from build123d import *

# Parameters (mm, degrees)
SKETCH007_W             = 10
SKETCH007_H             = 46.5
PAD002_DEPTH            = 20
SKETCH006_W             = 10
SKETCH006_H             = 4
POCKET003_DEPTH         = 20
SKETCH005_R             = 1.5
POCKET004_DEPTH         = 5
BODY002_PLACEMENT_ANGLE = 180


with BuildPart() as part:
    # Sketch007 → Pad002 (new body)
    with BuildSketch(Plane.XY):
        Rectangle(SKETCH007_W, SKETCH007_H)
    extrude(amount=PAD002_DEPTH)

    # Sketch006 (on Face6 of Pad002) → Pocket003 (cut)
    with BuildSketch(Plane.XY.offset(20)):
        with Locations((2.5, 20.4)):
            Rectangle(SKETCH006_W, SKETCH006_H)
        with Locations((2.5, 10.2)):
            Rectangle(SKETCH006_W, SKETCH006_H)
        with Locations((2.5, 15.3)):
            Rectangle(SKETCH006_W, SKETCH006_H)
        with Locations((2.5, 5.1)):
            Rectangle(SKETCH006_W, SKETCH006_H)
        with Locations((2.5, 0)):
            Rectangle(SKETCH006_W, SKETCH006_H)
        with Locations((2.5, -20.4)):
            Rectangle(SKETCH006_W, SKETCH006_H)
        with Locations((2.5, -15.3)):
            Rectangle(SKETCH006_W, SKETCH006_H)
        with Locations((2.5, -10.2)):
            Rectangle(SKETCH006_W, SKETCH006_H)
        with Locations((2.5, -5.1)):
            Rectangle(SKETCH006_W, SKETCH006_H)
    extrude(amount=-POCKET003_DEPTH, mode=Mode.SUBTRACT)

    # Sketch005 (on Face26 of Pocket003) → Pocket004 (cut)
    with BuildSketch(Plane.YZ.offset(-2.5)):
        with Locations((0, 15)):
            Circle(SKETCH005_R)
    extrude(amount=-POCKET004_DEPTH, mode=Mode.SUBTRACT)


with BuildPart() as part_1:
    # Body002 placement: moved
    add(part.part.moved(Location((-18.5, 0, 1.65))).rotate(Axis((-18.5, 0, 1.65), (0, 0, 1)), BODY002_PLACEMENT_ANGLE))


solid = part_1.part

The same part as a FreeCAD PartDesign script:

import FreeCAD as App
import Part
import Sketcher
Q = App.Units.Quantity

doc = App.newDocument("Part")
params = doc.addObject("Spreadsheet::Sheet", "Params")
for row, (alias, value) in enumerate([
    ("sketch1_width", "10 mm"),
    ("sketch1_height", "46.5 mm"),
    ("pad1_length", "20 mm"),
    ("sketch2_width", "10 mm"),
    ("sketch2_height", "4 mm"),
    ("pocket1_length", "20 mm"),
    ("sketch3_diameter", "3 mm"),
    ("pocket2_length", "5 mm"),
], start=1):
    params.set(f"A{row}", alias)
    params.set(f"B{row}", "=" + value)
    params.setAlias(f"B{row}", alias)

body = doc.addObject("PartDesign::Body", "Body")

sketch1 = body.newObject("Sketcher::SketchObject", "Sketch")
sketch1.AttachmentSupport = (doc.getObject("XY_Plane"), [""])
sketch1.MapMode = "FlatFace"
sketch1.addGeometry(Part.LineSegment(App.Vector(-5, 23.25, 0), App.Vector(-5, -23.25, 0)), False)
sketch1.addGeometry(Part.LineSegment(App.Vector(-5, -23.25, 0), App.Vector(5, -23.25, 0)), False)
sketch1.addGeometry(Part.LineSegment(App.Vector(5, -23.25, 0), App.Vector(5, 23.25, 0)), False)
sketch1.addGeometry(Part.LineSegment(App.Vector(5, 23.25, 0), App.Vector(-5, 23.25, 0)), False)
sketch1.addConstraint(Sketcher.Constraint("Coincident", 0, 2, 1, 1))
sketch1.addConstraint(Sketcher.Constraint("Coincident", 1, 2, 2, 1))
sketch1.addConstraint(Sketcher.Constraint("Coincident", 2, 2, 3, 1))
sketch1.addConstraint(Sketcher.Constraint("Coincident", 3, 2, 0, 1))
sketch1.addConstraint(Sketcher.Constraint("Vertical", 0))
sketch1.addConstraint(Sketcher.Constraint("Horizontal", 1))
sketch1.addConstraint(Sketcher.Constraint("Vertical", 2))
sketch1.addConstraint(Sketcher.Constraint("Horizontal", 3))
sketch1.addConstraint(Sketcher.Constraint("Symmetric", 0, 2, 2, 2, -1, 1))
sketch1.addConstraint(Sketcher.Constraint("DistanceX", 1, 1, 1, 2, Q("10 mm")))
sketch1.addConstraint(Sketcher.Constraint("DistanceY", 0, 2, 0, 1, Q("46.5 mm")))
sketch1.setExpression("Constraints[9]", "Params.sketch1_width")
sketch1.setExpression("Constraints[10]", "Params.sketch1_height")
pad1 = body.newObject("PartDesign::Pad", "Pad")
pad1.Profile = sketch1
pad1.setExpression("Length", "Params.pad1_length")

sketch2 = body.newObject("Sketcher::SketchObject", "Sketch001")
sketch2.AttachmentSupport = (doc.getObject("XY_Plane"), [""])
sketch2.MapMode = "FlatFace"
sketch2.AttachmentOffset = App.Placement(App.Vector(0, 0, 20), App.Rotation())
sketch2.addGeometry(Part.LineSegment(App.Vector(-2.5, 22.4, 0), App.Vector(-2.5, 18.4, 0)), False)
sketch2.addGeometry(Part.LineSegment(App.Vector(-2.5, 18.4, 0), App.Vector(7.5, 18.4, 0)), False)
sketch2.addGeometry(Part.LineSegment(App.Vector(7.5, 18.4, 0), App.Vector(7.5, 22.4, 0)), False)
sketch2.addGeometry(Part.LineSegment(App.Vector(7.5, 22.4, 0), App.Vector(-2.5, 22.4, 0)), False)
sketch2.addGeometry(Part.LineSegment(App.Vector(-2.5, 12.2, 0), App.Vector(-2.5, 8.2, 0)), False)
sketch2.addGeometry(Part.LineSegment(App.Vector(-2.5, 8.2, 0), App.Vector(7.5, 8.2, 0)), False)
sketch2.addGeometry(Part.LineSegment(App.Vector(7.5, 8.2, 0), App.Vector(7.5, 12.2, 0)), False)
sketch2.addGeometry(Part.LineSegment(App.Vector(7.5, 12.2, 0), App.Vector(-2.5, 12.2, 0)), False)
sketch2.addGeometry(Part.LineSegment(App.Vector(-2.5, 17.3, 0), App.Vector(-2.5, 13.3, 0)), False)
sketch2.addGeometry(Part.LineSegment(App.Vector(-2.5, 13.3, 0), App.Vector(7.5, 13.3, 0)), False)
sketch2.addGeometry(Part.LineSegment(App.Vector(7.5, 13.3, 0), App.Vector(7.5, 17.3, 0)), False)
sketch2.addGeometry(Part.LineSegment(App.Vector(7.5, 17.3, 0), App.Vector(-2.5, 17.3, 0)), False)
sketch2.addGeometry(Part.LineSegment(App.Vector(-2.5, 7.1, 0), App.Vector(-2.5, 3.1, 0)), False)
sketch2.addGeometry(Part.LineSegment(App.Vector(-2.5, 3.1, 0), App.Vector(7.5, 3.1, 0)), False)
sketch2.addGeometry(Part.LineSegment(App.Vector(7.5, 3.1, 0), App.Vector(7.5, 7.1, 0)), False)
sketch2.addGeometry(Part.LineSegment(App.Vector(7.5, 7.1, 0), App.Vector(-2.5, 7.1, 0)), False)
sketch2.addGeometry(Part.LineSegment(App.Vector(-2.5, 2, 0), App.Vector(-2.5, -2, 0)), False)
sketch2.addGeometry(Part.LineSegment(App.Vector(-2.5, -2, 0), App.Vector(7.5, -2, 0)), False)
sketch2.addGeometry(Part.LineSegment(App.Vector(7.5, -2, 0), App.Vector(7.5, 2, 0)), False)
sketch2.addGeometry(Part.LineSegment(App.Vector(7.5, 2, 0), App.Vector(-2.5, 2, 0)), False)
sketch2.addGeometry(Part.LineSegment(App.Vector(-2.5, -18.4, 0), App.Vector(-2.5, -22.4, 0)), False)
sketch2.addGeometry(Part.LineSegment(App.Vector(-2.5, -22.4, 0), App.Vector(7.5, -22.4, 0)), False)
sketch2.addGeometry(Part.LineSegment(App.Vector(7.5, -22.4, 0), App.Vector(7.5, -18.4, 0)), False)
sketch2.addGeometry(Part.LineSegment(App.Vector(7.5, -18.4, 0), App.Vector(-2.5, -18.4, 0)), False)
sketch2.addGeometry(Part.LineSegment(App.Vector(-2.5, -13.3, 0), App.Vector(-2.5, -17.3, 0)), False)
sketch2.addGeometry(Part.LineSegment(App.Vector(-2.5, -17.3, 0), App.Vector(7.5, -17.3, 0)), False)
sketch2.addGeometry(Part.LineSegment(App.Vector(7.5, -17.3, 0), App.Vector(7.5, -13.3, 0)), False)
sketch2.addGeometry(Part.LineSegment(App.Vector(7.5, -13.3, 0), App.Vector(-2.5, -13.3, 0)), False)
sketch2.addGeometry(Part.LineSegment(App.Vector(-2.5, -8.2, 0), App.Vector(-2.5, -12.2, 0)), False)
sketch2.addGeometry(Part.LineSegment(App.Vector(-2.5, -12.2, 0), App.Vector(7.5, -12.2, 0)), False)
sketch2.addGeometry(Part.LineSegment(App.Vector(7.5, -12.2, 0), App.Vector(7.5, -8.2, 0)), False)
sketch2.addGeometry(Part.LineSegment(App.Vector(7.5, -8.2, 0), App.Vector(-2.5, -8.2, 0)), False)
sketch2.addGeometry(Part.LineSegment(App.Vector(-2.5, -3.1, 0), App.Vector(-2.5, -7.1, 0)), False)
sketch2.addGeometry(Part.LineSegment(App.Vector(-2.5, -7.1, 0), App.Vector(7.5, -7.1, 0)), False)
sketch2.addGeometry(Part.LineSegment(App.Vector(7.5, -7.1, 0), App.Vector(7.5, -3.1, 0)), False)
sketch2.addGeometry(Part.LineSegment(App.Vector(7.5, -3.1, 0), App.Vector(-2.5, -3.1, 0)), False)
sketch2.addConstraint(Sketcher.Constraint("Coincident", 0, 2, 1, 1))
sketch2.addConstraint(Sketcher.Constraint("Coincident", 1, 2, 2, 1))
sketch2.addConstraint(Sketcher.Constraint("Coincident", 2, 2, 3, 1))
sketch2.addConstraint(Sketcher.Constraint("Coincident", 3, 2, 0, 1))
sketch2.addConstraint(Sketcher.Constraint("Coincident", 4, 2, 5, 1))
sketch2.addConstraint(Sketcher.Constraint("Coincident", 5, 2, 6, 1))
sketch2.addConstraint(Sketcher.Constraint("Coincident", 6, 2, 7, 1))
sketch2.addConstraint(Sketcher.Constraint("Coincident", 7, 2, 4, 1))
sketch2.addConstraint(Sketcher.Constraint("Coincident", 8, 2, 9, 1))
sketch2.addConstraint(Sketcher.Constraint("Coincident", 9, 2, 10, 1))
sketch2.addConstraint(Sketcher.Constraint("Coincident", 10, 2, 11, 1))
sketch2.addConstraint(Sketcher.Constraint("Coincident", 11, 2, 8, 1))
sketch2.addConstraint(Sketcher.Constraint("Coincident", 12, 2, 13, 1))
sketch2.addConstraint(Sketcher.Constraint("Coincident", 13, 2, 14, 1))
sketch2.addConstraint(Sketcher.Constraint("Coincident", 14, 2, 15, 1))
sketch2.addConstraint(Sketcher.Constraint("Coincident", 15, 2, 12, 1))
sketch2.addConstraint(Sketcher.Constraint("Coincident", 16, 2, 17, 1))
sketch2.addConstraint(Sketcher.Constraint("Coincident", 17, 2, 18, 1))
sketch2.addConstraint(Sketcher.Constraint("Coincident", 18, 2, 19, 1))
sketch2.addConstraint(Sketcher.Constraint("Coincident", 19, 2, 16, 1))
sketch2.addConstraint(Sketcher.Constraint("Coincident", 20, 2, 21, 1))
sketch2.addConstraint(Sketcher.Constraint("Coincident", 21, 2, 22, 1))
sketch2.addConstraint(Sketcher.Constraint("Coincident", 22, 2, 23, 1))
sketch2.addConstraint(Sketcher.Constraint("Coincident", 23, 2, 20, 1))
sketch2.addConstraint(Sketcher.Constraint("Coincident", 24, 2, 25, 1))
sketch2.addConstraint(Sketcher.Constraint("Coincident", 25, 2, 26, 1))
sketch2.addConstraint(Sketcher.Constraint("Coincident", 26, 2, 27, 1))
sketch2.addConstraint(Sketcher.Constraint("Coincident", 27, 2, 24, 1))
sketch2.addConstraint(Sketcher.Constraint("Coincident", 28, 2, 29, 1))
sketch2.addConstraint(Sketcher.Constraint("Coincident", 29, 2, 30, 1))
sketch2.addConstraint(Sketcher.Constraint("Coincident", 30, 2, 31, 1))
sketch2.addConstraint(Sketcher.Constraint("Coincident", 31, 2, 28, 1))
sketch2.addConstraint(Sketcher.Constraint("Coincident", 32, 2, 33, 1))
sketch2.addConstraint(Sketcher.Constraint("Coincident", 33, 2, 34, 1))
sketch2.addConstraint(Sketcher.Constraint("Coincident", 34, 2, 35, 1))
sketch2.addConstraint(Sketcher.Constraint("Coincident", 35, 2, 32, 1))
sketch2.addConstraint(Sketcher.Constraint("Vertical", 0))
sketch2.addConstraint(Sketcher.Constraint("Horizontal", 1))
sketch2.addConstraint(Sketcher.Constraint("Vertical", 2))
sketch2.addConstraint(Sketcher.Constraint("Horizontal", 3))
sketch2.addConstraint(Sketcher.Constraint("Vertical", 4))
sketch2.addConstraint(Sketcher.Constraint("Horizontal", 5))
sketch2.addConstraint(Sketcher.Constraint("Vertical", 6))
sketch2.addConstraint(Sketcher.Constraint("Horizontal", 7))
sketch2.addConstraint(Sketcher.Constraint("Vertical", 8))
sketch2.addConstraint(Sketcher.Constraint("Horizontal", 9))
sketch2.addConstraint(Sketcher.Constraint("Vertical", 10))
sketch2.addConstraint(Sketcher.Constraint("Horizontal", 11))
sketch2.addConstraint(Sketcher.Constraint("Vertical", 12))
sketch2.addConstraint(Sketcher.Constraint("Horizontal", 13))
sketch2.addConstraint(Sketcher.Constraint("Vertical", 14))
sketch2.addConstraint(Sketcher.Constraint("Horizontal", 15))
sketch2.addConstraint(Sketcher.Constraint("Vertical", 16))
sketch2.addConstraint(Sketcher.Constraint("Horizontal", 17))
sketch2.addConstraint(Sketcher.Constraint("Vertical", 18))
sketch2.addConstraint(Sketcher.Constraint("Horizontal", 19))
sketch2.addConstraint(Sketcher.Constraint("Vertical", 20))
sketch2.addConstraint(Sketcher.Constraint("Horizontal", 21))
sketch2.addConstraint(Sketcher.Constraint("Vertical", 22))
sketch2.addConstraint(Sketcher.Constraint("Horizontal", 23))
sketch2.addConstraint(Sketcher.Constraint("Vertical", 24))
sketch2.addConstraint(Sketcher.Constraint("Horizontal", 25))
sketch2.addConstraint(Sketcher.Constraint("Vertical", 26))
sketch2.addConstraint(Sketcher.Constraint("Horizontal", 27))
sketch2.addConstraint(Sketcher.Constraint("Vertical", 28))
sketch2.addConstraint(Sketcher.Constraint("Horizontal", 29))
sketch2.addConstraint(Sketcher.Constraint("Vertical", 30))
sketch2.addConstraint(Sketcher.Constraint("Horizontal", 31))
sketch2.addConstraint(Sketcher.Constraint("Vertical", 32))
sketch2.addConstraint(Sketcher.Constraint("Horizontal", 33))
sketch2.addConstraint(Sketcher.Constraint("Vertical", 34))
sketch2.addConstraint(Sketcher.Constraint("Horizontal", 35))
sketch2.addConstraint(Sketcher.Constraint("Symmetric", 3, 2, 20, 2, -1))
sketch2.addConstraint(Sketcher.Constraint("Symmetric", 1, 2, 22, 2, -1))
sketch2.addConstraint(Sketcher.Constraint("Symmetric", 11, 2, 24, 2, -1))
sketch2.addConstraint(Sketcher.Constraint("Symmetric", 9, 2, 26, 2, -1))
sketch2.addConstraint(Sketcher.Constraint("Symmetric", 7, 2, 28, 2, -1))
sketch2.addConstraint(Sketcher.Constraint("Symmetric", 5, 2, 30, 2, -1))
sketch2.addConstraint(Sketcher.Constraint("Symmetric", 15, 2, 32, 2, -1))
sketch2.addConstraint(Sketcher.Constraint("Symmetric", 13, 2, 34, 2, -1))
sketch2.addConstraint(Sketcher.Constraint("Vertical", 3, 2, 4, 2))
sketch2.addConstraint(Sketcher.Constraint("Vertical", 2, 2, 5, 2))
sketch2.addConstraint(Sketcher.Constraint("Vertical", 7, 2, 8, 2))
sketch2.addConstraint(Sketcher.Constraint("Vertical", 6, 2, 9, 2))
sketch2.addConstraint(Sketcher.Constraint("Vertical", 11, 2, 12, 2))
sketch2.addConstraint(Sketcher.Constraint("Vertical", 10, 2, 13, 2))
sketch2.addConstraint(Sketcher.Constraint("Vertical", 15, 2, 16, 2))
sketch2.addConstraint(Sketcher.Constraint("Vertical", 14, 2, 17, 2))
sketch2.addConstraint(Sketcher.Constraint("Equal", 2, 4))
sketch2.addConstraint(Sketcher.Constraint("Equal", 6, 8))
sketch2.addConstraint(Sketcher.Constraint("Equal", 10, 12))
sketch2.addConstraint(Sketcher.Constraint("Equal", 14, 16))
sketch2.addConstraint(Sketcher.Constraint("DistanceX", 1, 1, 1, 2, Q("10 mm")))
sketch2.addConstraint(Sketcher.Constraint("DistanceY", 0, 2, 0, 1, Q("4 mm")))
sketch2.addConstraint(Sketcher.Constraint("DistanceY", 16, 2, -1, 1, Q("2 mm")))
sketch2.addConstraint(Sketcher.Constraint("DistanceX", 0, 2, -1, 1, Q("2.5 mm")))
sketch2.addConstraint(Sketcher.Constraint("DistanceY", -1, 1, 0, 2, Q("18.4 mm")))
sketch2.addConstraint(Sketcher.Constraint("DistanceY", -1, 1, 4, 2, Q("8.2 mm")))
sketch2.addConstraint(Sketcher.Constraint("DistanceY", -1, 1, 8, 2, Q("13.3 mm")))
sketch2.addConstraint(Sketcher.Constraint("DistanceY", -1, 1, 12, 2, Q("3.1 mm")))
sketch2.setExpression("Constraints[92]", "Params.sketch2_width")
sketch2.setExpression("Constraints[93]", "Params.sketch2_height")
pocket1 = body.newObject("PartDesign::Pocket", "Pocket")
pocket1.Profile = sketch2
pocket1.setExpression("Length", "Params.pocket1_length")

sketch3 = body.newObject("Sketcher::SketchObject", "Sketch002")
sketch3.AttachmentSupport = (doc.getObject("YZ_Plane"), [""])
sketch3.MapMode = "FlatFace"
sketch3.AttachmentOffset = App.Placement(App.Vector(0, 0, -2.5), App.Rotation())
sketch3.addGeometry(Part.Circle(App.Vector(0, 15, 0), App.Vector(0, 0, 1), 1.5), False)
sketch3.addConstraint(Sketcher.Constraint("PointOnObject", 0, 3, -2))
sketch3.addConstraint(Sketcher.Constraint("Diameter", 0, Q("3 mm")))
sketch3.addConstraint(Sketcher.Constraint("DistanceY", -1, 1, 0, 3, Q("15 mm")))
sketch3.setExpression("Constraints[1]", "Params.sketch3_diameter")
pocket2 = body.newObject("PartDesign::Pocket", "Pocket001")
pocket2.Profile = sketch3
pocket2.setExpression("Length", "Params.pocket2_length")
body2 = doc.addObject("PartDesign::Body", "Body001")
doc.recompute()

body.Placement = App.Placement(App.Vector(-18.5, 0, 1.65), App.Rotation(App.Vector(0, 0, 1), 180))
boolean = body2.newObject("PartDesign::Boolean", "Boolean")
boolean.Type = "Fuse"
boolean.addObjects([body])

doc.recompute()
